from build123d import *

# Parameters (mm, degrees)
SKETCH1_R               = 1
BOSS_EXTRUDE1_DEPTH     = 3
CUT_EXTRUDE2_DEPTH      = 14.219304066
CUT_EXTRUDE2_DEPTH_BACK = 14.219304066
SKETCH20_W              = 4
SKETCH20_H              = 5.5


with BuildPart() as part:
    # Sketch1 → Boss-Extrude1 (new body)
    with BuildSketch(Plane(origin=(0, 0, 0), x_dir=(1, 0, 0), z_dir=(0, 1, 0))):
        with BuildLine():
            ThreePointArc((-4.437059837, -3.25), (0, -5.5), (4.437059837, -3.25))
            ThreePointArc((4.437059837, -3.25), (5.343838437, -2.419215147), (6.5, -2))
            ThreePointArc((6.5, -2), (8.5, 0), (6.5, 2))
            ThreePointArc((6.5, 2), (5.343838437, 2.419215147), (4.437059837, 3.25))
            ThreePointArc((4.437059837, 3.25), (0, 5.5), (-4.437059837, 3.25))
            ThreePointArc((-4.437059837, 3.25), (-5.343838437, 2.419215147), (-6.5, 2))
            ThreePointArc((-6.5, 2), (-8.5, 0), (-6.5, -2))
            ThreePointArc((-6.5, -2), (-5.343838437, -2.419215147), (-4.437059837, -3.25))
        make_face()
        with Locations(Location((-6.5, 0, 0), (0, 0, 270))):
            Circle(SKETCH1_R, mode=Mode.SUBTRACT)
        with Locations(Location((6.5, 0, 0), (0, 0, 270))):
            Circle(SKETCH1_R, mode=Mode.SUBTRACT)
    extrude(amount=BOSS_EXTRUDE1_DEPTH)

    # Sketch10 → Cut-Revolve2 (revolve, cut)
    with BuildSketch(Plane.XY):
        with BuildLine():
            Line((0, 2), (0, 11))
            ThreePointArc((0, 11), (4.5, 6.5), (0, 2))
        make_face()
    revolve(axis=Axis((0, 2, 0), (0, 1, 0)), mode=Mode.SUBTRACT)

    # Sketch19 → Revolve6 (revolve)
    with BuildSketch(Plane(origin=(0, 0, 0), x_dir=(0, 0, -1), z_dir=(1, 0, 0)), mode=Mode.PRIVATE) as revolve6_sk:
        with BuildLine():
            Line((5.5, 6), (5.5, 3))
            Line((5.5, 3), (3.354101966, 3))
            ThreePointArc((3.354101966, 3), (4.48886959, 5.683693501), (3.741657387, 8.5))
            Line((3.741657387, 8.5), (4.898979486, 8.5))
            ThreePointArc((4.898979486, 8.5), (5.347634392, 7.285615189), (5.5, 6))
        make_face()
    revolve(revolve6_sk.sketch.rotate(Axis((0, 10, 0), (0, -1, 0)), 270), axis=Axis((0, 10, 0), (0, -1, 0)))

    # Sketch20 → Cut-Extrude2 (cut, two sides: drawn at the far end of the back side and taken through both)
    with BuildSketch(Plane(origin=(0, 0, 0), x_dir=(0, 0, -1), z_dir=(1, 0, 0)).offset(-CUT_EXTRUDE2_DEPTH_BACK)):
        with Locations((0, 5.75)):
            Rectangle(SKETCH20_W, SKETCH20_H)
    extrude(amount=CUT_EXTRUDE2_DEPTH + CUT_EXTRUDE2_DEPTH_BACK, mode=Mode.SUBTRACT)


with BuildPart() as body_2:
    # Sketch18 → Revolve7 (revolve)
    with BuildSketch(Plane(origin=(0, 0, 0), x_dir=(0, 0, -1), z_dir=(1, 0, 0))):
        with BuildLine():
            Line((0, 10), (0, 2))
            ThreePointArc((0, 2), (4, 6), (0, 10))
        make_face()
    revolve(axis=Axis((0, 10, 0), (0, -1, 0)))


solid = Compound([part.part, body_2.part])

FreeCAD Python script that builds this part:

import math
import FreeCAD as App
import Part
import Sketcher
from FreeCAD import Vector


def add_polygon(sketch, points):
    """Adds a closed chain of lines whose ends are joined by coincident constraints."""
    first, n = sketch.GeometryCount, len(points)
    for a, b in zip(points, points[1:] + points[:1]):
        sketch.addGeometry(Part.LineSegment(App.Vector(*a, 0), App.Vector(*b, 0)), False)
    for i in range(n):
        sketch.addConstraint(Sketcher.Constraint("Coincident", first + i, 2, first + (i + 1) % n, 1))

doc = App.newDocument("Part")
params = doc.addObject("Spreadsheet::Sheet", "Params")
for row, (alias, value) in enumerate([
    ("sketch1_diameter", "2 mm"),
    ("sketch1_radius", "2 mm"),
    ("sketch1_radius2", "5.5 mm"),
    ("pad1_length", "3 mm"),
    ("sketch2_radius", "4.5 mm"),
    ("groove_angle", "360 deg"),
    ("sketch3_radius", "5.5 mm"),
    ("sketch3_radius2", "4.5 mm"),
    ("sketch3_width", "3 mm"),
    ("revolution_angle", "360 deg"),
    ("sketch4_height", "4 mm"),
    ("sketch4_width", "5.5 mm"),
    ("sketch5_radius", "4 mm"),
    ("revolution2_angle", "360 deg"),
], start=1):
    params.set(f"A{row}", alias)
    params.set(f"B{row}", "=" + value)
    params.setAlias(f"B{row}", alias)

body = doc.addObject("PartDesign::Body", "Body")

# Sketch on XZ plane
sketch1 = body.newObject("Sketcher::SketchObject", "Sketch")
sketch1.AttachmentSupport = (doc.getObject("XZ_Plane"), [""])
sketch1.MapMode = "FlatFace"
sketch1.addGeometry(Part.ArcOfCircle(Part.Circle(Vector(0, 0, 0), Vector(0, 0, 1), 5.5), math.radians(36), math.radians(144)), False)
sketch1.addGeometry(Part.ArcOfCircle(Part.Circle(Vector(7, 5.1, 0), Vector(0, 0, 1), 3.1), math.radians(-144), math.radians(-99)), False)
sketch1.addGeometry(Part.ArcOfCircle(Part.Circle(Vector(6.5, 0, 0), Vector(0, 0, 1), 2), math.radians(-90), math.radians(90)), False)
sketch1.addGeometry(Part.ArcOfCircle(Part.Circle(Vector(7, -5.1, 0), Vector(0, 0, 1), 3.1), math.radians(99), math.radians(144)), False)
sketch1.addGeometry(Part.ArcOfCircle(Part.Circle(Vector(0, 0, 0), Vector(0, 0, 1), 5.5), math.radians(-144), math.radians(-36)), False)
sketch1.addGeometry(Part.ArcOfCircle(Part.Circle(Vector(-7, -5.1, 0), Vector(0, 0, 1), 3.1), math.radians(36), math.radians(81)), False)
sketch1.addGeometry(Part.ArcOfCircle(Part.Circle(Vector(-6.5, 0, 0), Vector(0, 0, 1), 2), math.radians(90), math.radians(270)), False)
sketch1.addGeometry(Part.ArcOfCircle(Part.Circle(Vector(-7, 5.1, 0), Vector(0, 0, 1), 3.1), math.radians(-81), math.radians(-36)), False)
sketch1.addGeometry(Part.Circle(Vector(-6.5, 0, 0), Vector(0, 0, 1), 1), False)
sketch1.addGeometry(Part.Circle(Vector(6.5, 0, 0), Vector(0, 0, 1), 1), False)
sketch1.addConstraint(Sketcher.Constraint("Tangent", 0, 1, 1, 1))
sketch1.addConstraint(Sketcher.Constraint("Coincident", 1, 2, 2, 2))
sketch1.addConstraint(Sketcher.Constraint("Coincident", 2, 1, 3, 1))
sketch1.addConstraint(Sketcher.Constraint("Tangent", 3, 2, 4, 2))
sketch1.addConstraint(Sketcher.Constraint("Tangent", 4, 1, 5, 1))
sketch1.addConstraint(Sketcher.Constraint("Coincident", 5, 2, 6, 2))
sketch1.addConstraint(Sketcher.Constraint("Coincident", 6, 1, 7, 1))
sketch1.addConstraint(Sketcher.Constraint("Tangent", 7, 2, 0, 2))
sketch1.addConstraint(Sketcher.Constraint("Coincident", 0, 3, -1, 1))
sketch1.addConstraint(Sketcher.Constraint("Coincident", 4, 3, -1, 1))
sketch1.addConstraint(Sketcher.Constraint("Coincident", 8, 3, 6, 3))
sketch1.addConstraint(Sketcher.Constraint("Coincident", 9, 3, 2, 3))
sketch1.addConstraint(Sketcher.Constraint("Equal", 1, 3))
sketch1.addConstraint(Sketcher.Constraint("Equal", 0, 4))
sketch1.addConstraint(Sketcher.Constraint("Equal", 3, 5))
sketch1.addConstraint(Sketcher.Constraint("Equal", 2, 6))
sketch1.addConstraint(Sketcher.Constraint("Equal", 5, 7))
sketch1.addConstraint(Sketcher.Constraint("Equal", 8, 9))
sketch1.addConstraint(Sketcher.Constraint("Symmetric", 2, 3, 6, 3, -1, 1))
sketch1.addConstraint(Sketcher.Constraint("Symmetric", 2, 1, 5, 2, -2))
sketch1.addConstraint(Sketcher.Constraint("Horizontal", 1, 3, 7, 3))
sketch1.addConstraint(Sketcher.Constraint("Vertical", 1, 3, 3, 3))
sketch1.addConstraint(Sketcher.Constraint("Vertical", 9, 3, 1, 2))
sketch1.addConstraint(Sketcher.Constraint("Diameter", 8, 2.0))
sketch1.addConstraint(Sketcher.Constraint("Radius", 2, 2.0))
sketch1.addConstraint(Sketcher.Constraint("Radius", 0, 5.5))
sketch1.addConstraint(Sketcher.Constraint("DistanceX", 6, 3, 2, 3, 13.0))
sketch1.addConstraint(Sketcher.Constraint("DistanceY", -1, 1, 0, 1, 3.25))
sketch1.setExpression("Constraints[23]", "Params.sketch1_diameter")
sketch1.setExpression("Constraints[24]", "Params.sketch1_radius")
sketch1.setExpression("Constraints[25]", "Params.sketch1_radius2")
pad1 = body.newObject("PartDesign::Pad", "Pad")
pad1.Profile = sketch1
pad1.setExpression("Length", "Params.pad1_length")
pad1.Reversed = True

# Sketch on XY plane
sketch2 = body.newObject("Sketcher::SketchObject", "Sketch001")
sketch2.AttachmentSupport = (doc.getObject("XY_Plane"), [""])
sketch2.MapMode = "FlatFace"
sketch2.addGeometry(Part.LineSegment(Vector(0, 11, 0), Vector(0, 2, 0)), False)
sketch2.addGeometry(Part.ArcOfCircle(Part.Circle(Vector(0, 6.5, 0), Vector(0, 0, 1), 4.5), math.radians(-90), math.radians(90)), False)
sketch2.addConstraint(Sketcher.Constraint("Coincident", 0, 1, 1, 2))
sketch2.addConstraint(Sketcher.Constraint("Coincident", 1, 1, 0, 2))
sketch2.addConstraint(Sketcher.Constraint("Vertical", 0))
sketch2.addConstraint(Sketcher.Constraint("PointOnObject", 1, 3, -2))
sketch2.addConstraint(Sketcher.Constraint("PointOnObject", 0, 1, -2))
sketch2.addConstraint(Sketcher.Constraint("Radius", 1, 4.5))
sketch2.addConstraint(Sketcher.Constraint("DistanceY", -1, 1, 0, 1, 11.0))
sketch2.setExpression("Constraints[5]", "Params.sketch2_radius")
groove = body.newObject("PartDesign::Groove", "Groove")
groove.Profile = sketch2
groove.ReferenceAxis = (sketch2, ["V_Axis"])
groove.setExpression("Angle", "Params.groove_angle")

# Sketch on YZ plane
sketch3 = body.newObject("Sketcher::SketchObject", "Sketch002")
sketch3.AttachmentSupport = (doc.getObject("YZ_Plane"), [""])
sketch3.MapMode = "FlatFace"
sketch3.addGeometry(Part.LineSegment(Vector(3, -5.5, 0), Vector(6, -5.5, 0)), False)
sketch3.addGeometry(Part.ArcOfCircle(Part.Circle(Vector(6, 0, 0), Vector(0, 0, 1), 5.5), math.radians(-90), math.radians(-63)), False)
sketch3.addGeometry(Part.LineSegment(Vector(8.5, -4.9, 0), Vector(8.5, -3.7, 0)), False)
sketch3.addGeometry(Part.ArcOfCircle(Part.Circle(Vector(6, 0, 0), Vector(0, 0, 1), 4.5), math.radians(-132), math.radians(-56)), False)
sketch3.addGeometry(Part.LineSegment(Vector(3, -3.4, 0), Vector(3, -5.5, 0)), False)
sketch3.addConstraint(Sketcher.Constraint("Tangent", 0, 2, 1, 1))
sketch3.addConstraint(Sketcher.Constraint("Coincident", 1, 2, 2, 1))
sketch3.addConstraint(Sketcher.Constraint("Coincident", 2, 2, 3, 2))
sketch3.addConstraint(Sketcher.Constraint("Coincident", 3, 1, 4, 1))
sketch3.addConstraint(Sketcher.Constraint("Coincident", 4, 2, 0, 1))
sketch3.addConstraint(Sketcher.Constraint("Horizontal", 0))
sketch3.addConstraint(Sketcher.Constraint("Vertical", 2))
sketch3.addConstraint(Sketcher.Constraint("Vertical", 4))
sketch3.addConstraint(Sketcher.Constraint("Coincident", 3, 3, 1, 3))
sketch3.addConstraint(Sketcher.Constraint("PointOnObject", 1, 3, -1))
sketch3.addConstraint(Sketcher.Constraint("Radius", 1, 5.5))
sketch3.addConstraint(Sketcher.Constraint("Radius", 3, 4.5))
sketch3.addConstraint(Sketcher.Constraint("DistanceX", 0, 1, 0, 2, 3.0))
sketch3.addConstraint(Sketcher.Constraint("DistanceX", -1, 1, 1, 3, 6.0))
sketch3.addConstraint(Sketcher.Constraint("DistanceX", -1, 1, 1, 2, 8.5))
sketch3.setExpression("Constraints[10]", "Params.sketch3_radius")
sketch3.setExpression("Constraints[11]", "Params.sketch3_radius2")
sketch3.setExpression("Constraints[12]", "Params.sketch3_width")
revolution = body.newObject("PartDesign::Revolution", "Revolution")
revolution.Profile = sketch3
revolution.ReferenceAxis = (sketch3, ["H_Axis"])
revolution.setExpression("Angle", "Params.revolution_angle")

# Sketch on YZ plane
sketch4 = body.newObject("Sketcher::SketchObject", "Sketch003")
sketch4.AttachmentSupport = (doc.getObject("YZ_Plane"), [""])
sketch4.MapMode = "FlatFace"
add_polygon(sketch4, [(8.5, 2), (3, 2), (3, -2), (8.5, -2)])  # lines 0-3
sketch4.addConstraint(Sketcher.Constraint("Horizontal", 0))
sketch4.addConstraint(Sketcher.Constraint("Vertical", 1))
sketch4.addConstraint(Sketcher.Constraint("Horizontal", 2))
sketch4.addConstraint(Sketcher.Constraint("Vertical", 3))
sketch4.addConstraint(Sketcher.Constraint("DistanceY", 1, 2, 1, 1, 4.0))
sketch4.addConstraint(Sketcher.Constraint("DistanceX", 0, 2, 0, 1, 5.5))
sketch4.addConstraint(Sketcher.Constraint("DistanceX", -1, 1, 0, 2, 3.0))
sketch4.addConstraint(Sketcher.Constraint("DistanceY", -1, 1, 0, 2, 2.0))
sketch4.setExpression("Constraints[8]", "Params.sketch4_height")
sketch4.setExpression("Constraints[9]", "Params.sketch4_width")
pocket1 = body.newObject("PartDesign::Pocket", "Pocket")
pocket1.Profile = sketch4
pocket1.Type = "ThroughAll"
pocket1.Midplane = True
body2 = doc.addObject("PartDesign::Body", "Body001")

# Sketch on YZ plane
sketch5 = body2.newObject("Sketcher::SketchObject", "Sketch004")
sketch5.AttachmentSupport = (doc.getObject("YZ_Plane001"), [""])
sketch5.MapMode = "FlatFace"
sketch5.addGeometry(Part.LineSegment(Vector(10, 0, 0), Vector(2, 0, 0)), False)
sketch5.addGeometry(Part.ArcOfCircle(Part.Circle(Vector(6, 0, 0), Vector(0, 0, 1), 4), math.radians(180), math.radians(360)), False)
sketch5.addConstraint(Sketcher.Constraint("Coincident", 0, 1, 1, 2))
sketch5.addConstraint(Sketcher.Constraint("Coincident", 1, 1, 0, 2))
sketch5.addConstraint(Sketcher.Constraint("Horizontal", 0))
sketch5.addConstraint(Sketcher.Constraint("PointOnObject", 1, 3, -1))
sketch5.addConstraint(Sketcher.Constraint("PointOnObject", 0, 1, -1))
sketch5.addConstraint(Sketcher.Constraint("Radius", 1, 4.0))
sketch5.addConstraint(Sketcher.Constraint("DistanceX", -1, 1, 1, 3, 6.0))
sketch5.setExpression("Constraints[5]", "Params.sketch5_radius")
revolution2 = body2.newObject("PartDesign::Revolution", "Revolution001")
revolution2.Profile = sketch5
revolution2.ReferenceAxis = (sketch5, ["H_Axis"])
revolution2.setExpression("Angle", "Params.revolution2_angle")

doc.recompute()
